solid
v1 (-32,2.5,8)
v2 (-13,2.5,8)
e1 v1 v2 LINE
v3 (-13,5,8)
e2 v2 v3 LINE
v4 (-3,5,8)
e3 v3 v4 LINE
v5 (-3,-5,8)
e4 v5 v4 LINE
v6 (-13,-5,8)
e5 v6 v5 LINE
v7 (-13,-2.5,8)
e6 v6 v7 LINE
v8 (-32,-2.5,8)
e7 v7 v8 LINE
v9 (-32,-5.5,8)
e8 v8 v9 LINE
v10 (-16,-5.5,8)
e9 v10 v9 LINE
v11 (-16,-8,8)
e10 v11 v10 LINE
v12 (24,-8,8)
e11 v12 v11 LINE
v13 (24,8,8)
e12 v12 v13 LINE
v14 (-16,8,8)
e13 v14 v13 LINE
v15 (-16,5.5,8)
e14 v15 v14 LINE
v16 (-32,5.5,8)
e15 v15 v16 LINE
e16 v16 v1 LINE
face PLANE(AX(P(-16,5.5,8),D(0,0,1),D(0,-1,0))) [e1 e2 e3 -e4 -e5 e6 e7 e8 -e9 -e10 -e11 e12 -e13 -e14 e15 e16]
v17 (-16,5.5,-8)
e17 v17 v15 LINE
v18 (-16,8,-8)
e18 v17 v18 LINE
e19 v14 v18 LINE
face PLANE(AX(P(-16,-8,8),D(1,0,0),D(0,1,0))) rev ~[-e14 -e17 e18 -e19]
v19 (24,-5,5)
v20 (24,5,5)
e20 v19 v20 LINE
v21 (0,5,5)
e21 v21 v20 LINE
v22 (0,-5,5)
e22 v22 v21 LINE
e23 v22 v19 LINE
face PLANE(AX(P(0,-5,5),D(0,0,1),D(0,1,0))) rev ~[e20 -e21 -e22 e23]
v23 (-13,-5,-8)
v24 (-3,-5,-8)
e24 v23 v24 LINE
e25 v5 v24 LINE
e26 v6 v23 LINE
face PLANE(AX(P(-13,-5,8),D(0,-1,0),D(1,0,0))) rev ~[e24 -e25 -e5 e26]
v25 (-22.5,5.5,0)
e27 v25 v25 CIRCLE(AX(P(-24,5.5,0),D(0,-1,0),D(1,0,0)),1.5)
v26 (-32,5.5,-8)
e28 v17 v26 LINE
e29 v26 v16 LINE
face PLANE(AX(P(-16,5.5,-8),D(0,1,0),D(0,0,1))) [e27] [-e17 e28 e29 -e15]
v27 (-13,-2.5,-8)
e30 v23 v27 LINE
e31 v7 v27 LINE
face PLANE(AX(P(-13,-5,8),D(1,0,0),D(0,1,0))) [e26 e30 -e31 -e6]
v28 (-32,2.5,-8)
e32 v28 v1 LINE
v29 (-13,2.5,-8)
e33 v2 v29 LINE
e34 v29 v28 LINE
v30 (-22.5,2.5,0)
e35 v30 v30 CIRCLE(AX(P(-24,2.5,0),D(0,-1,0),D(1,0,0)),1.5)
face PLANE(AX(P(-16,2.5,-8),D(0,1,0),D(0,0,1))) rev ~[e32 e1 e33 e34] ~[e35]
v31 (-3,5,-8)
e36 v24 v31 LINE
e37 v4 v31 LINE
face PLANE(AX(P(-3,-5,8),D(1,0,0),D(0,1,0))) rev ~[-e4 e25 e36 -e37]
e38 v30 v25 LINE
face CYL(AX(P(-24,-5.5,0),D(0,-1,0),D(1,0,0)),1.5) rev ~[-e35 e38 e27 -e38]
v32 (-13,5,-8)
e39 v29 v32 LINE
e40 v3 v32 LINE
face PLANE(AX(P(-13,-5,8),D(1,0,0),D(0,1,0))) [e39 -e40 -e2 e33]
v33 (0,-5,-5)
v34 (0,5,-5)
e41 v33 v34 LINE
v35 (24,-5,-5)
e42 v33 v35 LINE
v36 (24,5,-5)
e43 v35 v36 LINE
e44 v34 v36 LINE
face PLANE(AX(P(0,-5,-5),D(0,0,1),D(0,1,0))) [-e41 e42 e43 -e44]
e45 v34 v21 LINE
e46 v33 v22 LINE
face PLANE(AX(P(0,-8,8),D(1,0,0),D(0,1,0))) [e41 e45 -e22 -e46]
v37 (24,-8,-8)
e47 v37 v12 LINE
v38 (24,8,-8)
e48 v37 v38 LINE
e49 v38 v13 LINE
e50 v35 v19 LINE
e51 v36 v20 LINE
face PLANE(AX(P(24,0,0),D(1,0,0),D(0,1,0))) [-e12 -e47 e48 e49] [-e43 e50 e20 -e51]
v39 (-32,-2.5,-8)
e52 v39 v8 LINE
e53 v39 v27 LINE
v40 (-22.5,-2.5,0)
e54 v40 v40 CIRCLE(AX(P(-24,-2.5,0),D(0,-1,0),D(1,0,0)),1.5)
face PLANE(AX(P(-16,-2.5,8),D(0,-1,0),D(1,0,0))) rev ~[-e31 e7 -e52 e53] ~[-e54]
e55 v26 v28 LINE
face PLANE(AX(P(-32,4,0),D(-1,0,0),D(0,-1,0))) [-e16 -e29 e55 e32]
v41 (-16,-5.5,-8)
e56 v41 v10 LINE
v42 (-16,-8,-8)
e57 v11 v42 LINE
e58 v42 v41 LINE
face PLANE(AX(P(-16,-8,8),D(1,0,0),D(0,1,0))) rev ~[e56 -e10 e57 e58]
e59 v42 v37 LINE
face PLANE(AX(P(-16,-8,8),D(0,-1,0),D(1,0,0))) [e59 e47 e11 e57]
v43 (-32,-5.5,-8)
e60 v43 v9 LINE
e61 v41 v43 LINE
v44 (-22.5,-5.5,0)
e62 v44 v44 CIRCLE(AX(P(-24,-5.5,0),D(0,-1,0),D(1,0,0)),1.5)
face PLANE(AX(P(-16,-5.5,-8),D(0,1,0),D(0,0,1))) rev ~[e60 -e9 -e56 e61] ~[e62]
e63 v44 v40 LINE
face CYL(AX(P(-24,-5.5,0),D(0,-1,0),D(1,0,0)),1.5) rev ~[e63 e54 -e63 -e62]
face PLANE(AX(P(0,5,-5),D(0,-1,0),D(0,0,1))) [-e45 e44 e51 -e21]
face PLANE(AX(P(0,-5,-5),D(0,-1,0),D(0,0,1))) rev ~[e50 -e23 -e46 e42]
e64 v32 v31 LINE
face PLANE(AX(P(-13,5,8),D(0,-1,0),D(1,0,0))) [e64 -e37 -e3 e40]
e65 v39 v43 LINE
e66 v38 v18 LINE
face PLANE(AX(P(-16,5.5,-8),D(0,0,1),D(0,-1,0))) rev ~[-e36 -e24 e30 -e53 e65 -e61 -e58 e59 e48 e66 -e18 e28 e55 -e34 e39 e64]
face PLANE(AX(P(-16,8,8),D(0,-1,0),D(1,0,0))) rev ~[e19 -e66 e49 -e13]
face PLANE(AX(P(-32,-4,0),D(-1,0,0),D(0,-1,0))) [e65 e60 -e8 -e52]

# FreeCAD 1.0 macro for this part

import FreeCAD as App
import Part
import Sketcher
from FreeCAD import Vector
Q = App.Units.Quantity


def add_polygon(sketch, points):
    """Adds a closed chain of lines whose ends are joined by coincident constraints."""
    first, n = sketch.GeometryCount, len(points)
    for a, b in zip(points, points[1:] + points[:1]):
        sketch.addGeometry(Part.LineSegment(App.Vector(*a, 0), App.Vector(*b, 0)), False)
    for i in range(n):
        sketch.addConstraint(Sketcher.Constraint("Coincident", first + i, 2, first + (i + 1) % n, 1))

doc = App.newDocument("Part")
params = doc.addObject("Spreadsheet::Sheet", "Params")
for row, (alias, value) in enumerate([
    ("sketch1_width", "16 mm"),
    ("sketch1_width2", "10 mm"),
    ("pad1_length", "24 mm"),
    ("sketch2_width", "16 mm"),
    ("sketch2_width2", "10 mm"),
    ("pad2_length", "16 mm"),
    ("sketch3_width", "3 mm"),
    ("sketch3_height", "5 mm"),
    ("pocket1_length", "25 mm"),
    ("sketch4_width", "3 mm"),
    ("sketch4_height", "16 mm"),
    ("pad3_length", "16 mm"),
    ("sketch5_diameter", "3 mm"),
], start=1):
    params.set(f"A{row}", alias)
    params.set(f"B{row}", "=" + value)
    params.setAlias(f"B{row}", alias)

body = doc.addObject("PartDesign::Body", "Body")

# Sketch on YZ plane
sketch1 = body.newObject("Sketcher::SketchObject", "Sketch")
sketch1.AttachmentSupport = (doc.getObject("YZ_Plane"), [""])
sketch1.MapMode = "FlatFace"
add_polygon(sketch1, [(-8, 8), (-8, -8), (8, -8), (8, 8)])  # lines 0-3
add_polygon(sketch1, [(5, -5), (-5, -5), (-5, 5), (5, 5)])  # lines 4-7
sketch1.addConstraint([
    Sketcher.Constraint("Vertical", 0),
    Sketcher.Constraint("Horizontal", 1),
    Sketcher.Constraint("Vertical", 2),
    Sketcher.Constraint("Horizontal", 3),
    Sketcher.Constraint("Horizontal", 4),
    Sketcher.Constraint("Vertical", 5),
    Sketcher.Constraint("Horizontal", 6),
    Sketcher.Constraint("Vertical", 7),
    Sketcher.Constraint("Symmetric", 0, 2, 2, 2, -1, 1),
    Sketcher.Constraint("Symmetric", 4, 2, 6, 2, -1, 1),
    Sketcher.Constraint("Equal", 3, 0),
    Sketcher.Constraint("Equal", 6, 5),
    Sketcher.Constraint("DistanceX", 1, 1, 1, 2, Q("16 mm")),
    Sketcher.Constraint("DistanceX", 4, 2, 4, 1, Q("10 mm")),
])
sketch1.setExpression("Constraints[20]", "Params.sketch1_width")
sketch1.setExpression("Constraints[21]", "Params.sketch1_width2")
pad1 = body.newObject("PartDesign::Pad", "Pad")
pad1.Profile = sketch1
pad1.setExpression("Length", "Params.pad1_length")

# Sketch on XY plane
sketch2 = body.newObject("Sketcher::SketchObject", "Sketch001")
sketch2.AttachmentSupport = (doc.getObject("XY_Plane"), [""])
sketch2.MapMode = "FlatFace"
sketch2.AttachmentOffset = App.Placement(Vector(0, 0, 8), App.Rotation())
add_polygon(sketch2, [(-16, 8), (-16, -8), (0, -8), (0, 8)])  # lines 0-3
add_polygon(sketch2, [(-3, -5), (-13, -5), (-13, 5), (-3, 5)])  # lines 4-7
sketch2.addConstraint([
    Sketcher.Constraint("Vertical", 0),
    Sketcher.Constraint("Horizontal", 1),
    Sketcher.Constraint("Vertical", 2),
    Sketcher.Constraint("Horizontal", 3),
    Sketcher.Constraint("Horizontal", 4),
    Sketcher.Constraint("Vertical", 5),
    Sketcher.Constraint("Horizontal", 6),
    Sketcher.Constraint("Vertical", 7),
    Sketcher.Constraint("Symmetric", 1, 2, 2, 2, -1, 1),
    Sketcher.Constraint("Equal", 3, 0),
    Sketcher.Constraint("Equal", 6, 5),
    Sketcher.Constraint("DistanceX", 1, 1, 1, 2, Q("16 mm")),
    Sketcher.Constraint("DistanceX", 4, 2, 4, 1, Q("10 mm")),
    Sketcher.Constraint("DistanceX", 4, 2, -1, 1, Q("13 mm")),
    Sketcher.Constraint("DistanceY", 4, 2, -1, 1, Q("5 mm")),
])
sketch2.setExpression("Constraints[19]", "Params.sketch2_width")
sketch2.setExpression("Constraints[20]", "Params.sketch2_width2")
pad2 = body.newObject("PartDesign::Pad", "Pad001")
pad2.Profile = sketch2
pad2.setExpression("Length", "Params.pad2_length")
pad2.Reversed = True

# Sketch on XY plane
sketch3 = body.newObject("Sketcher::SketchObject", "Sketch002")
sketch3.AttachmentSupport = (doc.getObject("XY_Plane"), [""])
sketch3.MapMode = "FlatFace"
sketch3.AttachmentOffset = App.Placement(Vector(0, 0, 8), App.Rotation())
add_polygon(sketch3, [(-16, 2.5), (-16, -2.5), (-13, -2.5), (-13, 2.5)])  # lines 0-3
sketch3.addConstraint([
    Sketcher.Constraint("Vertical", 0),
    Sketcher.Constraint("Horizontal", 1),
    Sketcher.Constraint("Vertical", 2),
    Sketcher.Constraint("Horizontal", 3),
    Sketcher.Constraint("DistanceX", 1, 1, 1, 2, Q("3 mm")),
    Sketcher.Constraint("DistanceY", 0, 2, 0, 1, Q("5 mm")),
    Sketcher.Constraint("DistanceX", 0, 2, -1, 1, Q("16 mm")),
    Sketcher.Constraint("DistanceY", 0, 2, -1, 1, Q("2.5 mm")),
])
sketch3.setExpression("Constraints[8]", "Params.sketch3_width")
sketch3.setExpression("Constraints[9]", "Params.sketch3_height")
pocket1 = body.newObject("PartDesign::Pocket", "Pocket")
pocket1.Profile = sketch3
pocket1.setExpression("Length", "Params.pocket1_length")

# Sketch on YZ plane
sketch4 = body.newObject("Sketcher::SketchObject", "Sketch003")
sketch4.AttachmentSupport = (doc.getObject("YZ_Plane"), [""])
sketch4.MapMode = "FlatFace"
sketch4.AttachmentOffset = App.Placement(Vector(0, 0, -16), App.Rotation())
add_polygon(sketch4, [(5.5, 8), (5.5, -8), (2.5, -8), (2.5, 8)])  # lines 0-3
add_polygon(sketch4, [(-2.5, 8), (-2.5, -8), (-5.5, -8), (-5.5, 8)])  # lines 4-7
sketch4.addConstraint([
    Sketcher.Constraint("Vertical", 0),
    Sketcher.Constraint("Horizontal", 1),
    Sketcher.Constraint("Vertical", 2),
    Sketcher.Constraint("Horizontal", 3),
    Sketcher.Constraint("Vertical", 4),
    Sketcher.Constraint("Horizontal", 5),
    Sketcher.Constraint("Vertical", 6),
    Sketcher.Constraint("Horizontal", 7),
    Sketcher.Constraint("Symmetric", 2, 2, 4, 2, -1, 1),
    Sketcher.Constraint("Symmetric", 0, 2, 6, 2, -1, 1),
    Sketcher.Constraint("Horizontal", 1, 2, 4, 2),
    Sketcher.Constraint("DistanceX", 1, 2, 1, 1, Q("3 mm")),
    Sketcher.Constraint("DistanceY", 0, 2, 0, 1, Q("16 mm")),
    Sketcher.Constraint("DistanceX", 4, 2, 1, 2, Q("5 mm")),
])
sketch4.setExpression("Constraints[19]", "Params.sketch4_width")
sketch4.setExpression("Constraints[20]", "Params.sketch4_height")
pad3 = body.newObject("PartDesign::Pad", "Pad002")
pad3.Profile = sketch4
pad3.setExpression("Length", "Params.pad3_length")
pad3.Reversed = True

# Sketch on XZ plane
sketch5 = body.newObject("Sketcher::SketchObject", "Sketch004")
sketch5.AttachmentSupport = (doc.getObject("XZ_Plane"), [""])
sketch5.MapMode = "FlatFace"
sketch5.AttachmentOffset = App.Placement(Vector(0, 0, 5.5), App.Rotation())
sketch5.addGeometry(Part.Circle(Vector(-24, 0, 0), Vector(0, 0, 1), 1.5), False)
sketch5.addConstraint([
    Sketcher.Constraint("PointOnObject", 0, 3, -1),
    Sketcher.Constraint("Diameter", 0, Q("3 mm")),
    Sketcher.Constraint("DistanceX", 0, 3, -1, 1, Q("24 mm")),
])
sketch5.setExpression("Constraints[1]", "Params.sketch5_diameter")
pocket2 = body.newObject("PartDesign::Pocket", "Pocket001")
pocket2.Profile = sketch5
pocket2.Type = "ThroughAll"

doc.recompute()
